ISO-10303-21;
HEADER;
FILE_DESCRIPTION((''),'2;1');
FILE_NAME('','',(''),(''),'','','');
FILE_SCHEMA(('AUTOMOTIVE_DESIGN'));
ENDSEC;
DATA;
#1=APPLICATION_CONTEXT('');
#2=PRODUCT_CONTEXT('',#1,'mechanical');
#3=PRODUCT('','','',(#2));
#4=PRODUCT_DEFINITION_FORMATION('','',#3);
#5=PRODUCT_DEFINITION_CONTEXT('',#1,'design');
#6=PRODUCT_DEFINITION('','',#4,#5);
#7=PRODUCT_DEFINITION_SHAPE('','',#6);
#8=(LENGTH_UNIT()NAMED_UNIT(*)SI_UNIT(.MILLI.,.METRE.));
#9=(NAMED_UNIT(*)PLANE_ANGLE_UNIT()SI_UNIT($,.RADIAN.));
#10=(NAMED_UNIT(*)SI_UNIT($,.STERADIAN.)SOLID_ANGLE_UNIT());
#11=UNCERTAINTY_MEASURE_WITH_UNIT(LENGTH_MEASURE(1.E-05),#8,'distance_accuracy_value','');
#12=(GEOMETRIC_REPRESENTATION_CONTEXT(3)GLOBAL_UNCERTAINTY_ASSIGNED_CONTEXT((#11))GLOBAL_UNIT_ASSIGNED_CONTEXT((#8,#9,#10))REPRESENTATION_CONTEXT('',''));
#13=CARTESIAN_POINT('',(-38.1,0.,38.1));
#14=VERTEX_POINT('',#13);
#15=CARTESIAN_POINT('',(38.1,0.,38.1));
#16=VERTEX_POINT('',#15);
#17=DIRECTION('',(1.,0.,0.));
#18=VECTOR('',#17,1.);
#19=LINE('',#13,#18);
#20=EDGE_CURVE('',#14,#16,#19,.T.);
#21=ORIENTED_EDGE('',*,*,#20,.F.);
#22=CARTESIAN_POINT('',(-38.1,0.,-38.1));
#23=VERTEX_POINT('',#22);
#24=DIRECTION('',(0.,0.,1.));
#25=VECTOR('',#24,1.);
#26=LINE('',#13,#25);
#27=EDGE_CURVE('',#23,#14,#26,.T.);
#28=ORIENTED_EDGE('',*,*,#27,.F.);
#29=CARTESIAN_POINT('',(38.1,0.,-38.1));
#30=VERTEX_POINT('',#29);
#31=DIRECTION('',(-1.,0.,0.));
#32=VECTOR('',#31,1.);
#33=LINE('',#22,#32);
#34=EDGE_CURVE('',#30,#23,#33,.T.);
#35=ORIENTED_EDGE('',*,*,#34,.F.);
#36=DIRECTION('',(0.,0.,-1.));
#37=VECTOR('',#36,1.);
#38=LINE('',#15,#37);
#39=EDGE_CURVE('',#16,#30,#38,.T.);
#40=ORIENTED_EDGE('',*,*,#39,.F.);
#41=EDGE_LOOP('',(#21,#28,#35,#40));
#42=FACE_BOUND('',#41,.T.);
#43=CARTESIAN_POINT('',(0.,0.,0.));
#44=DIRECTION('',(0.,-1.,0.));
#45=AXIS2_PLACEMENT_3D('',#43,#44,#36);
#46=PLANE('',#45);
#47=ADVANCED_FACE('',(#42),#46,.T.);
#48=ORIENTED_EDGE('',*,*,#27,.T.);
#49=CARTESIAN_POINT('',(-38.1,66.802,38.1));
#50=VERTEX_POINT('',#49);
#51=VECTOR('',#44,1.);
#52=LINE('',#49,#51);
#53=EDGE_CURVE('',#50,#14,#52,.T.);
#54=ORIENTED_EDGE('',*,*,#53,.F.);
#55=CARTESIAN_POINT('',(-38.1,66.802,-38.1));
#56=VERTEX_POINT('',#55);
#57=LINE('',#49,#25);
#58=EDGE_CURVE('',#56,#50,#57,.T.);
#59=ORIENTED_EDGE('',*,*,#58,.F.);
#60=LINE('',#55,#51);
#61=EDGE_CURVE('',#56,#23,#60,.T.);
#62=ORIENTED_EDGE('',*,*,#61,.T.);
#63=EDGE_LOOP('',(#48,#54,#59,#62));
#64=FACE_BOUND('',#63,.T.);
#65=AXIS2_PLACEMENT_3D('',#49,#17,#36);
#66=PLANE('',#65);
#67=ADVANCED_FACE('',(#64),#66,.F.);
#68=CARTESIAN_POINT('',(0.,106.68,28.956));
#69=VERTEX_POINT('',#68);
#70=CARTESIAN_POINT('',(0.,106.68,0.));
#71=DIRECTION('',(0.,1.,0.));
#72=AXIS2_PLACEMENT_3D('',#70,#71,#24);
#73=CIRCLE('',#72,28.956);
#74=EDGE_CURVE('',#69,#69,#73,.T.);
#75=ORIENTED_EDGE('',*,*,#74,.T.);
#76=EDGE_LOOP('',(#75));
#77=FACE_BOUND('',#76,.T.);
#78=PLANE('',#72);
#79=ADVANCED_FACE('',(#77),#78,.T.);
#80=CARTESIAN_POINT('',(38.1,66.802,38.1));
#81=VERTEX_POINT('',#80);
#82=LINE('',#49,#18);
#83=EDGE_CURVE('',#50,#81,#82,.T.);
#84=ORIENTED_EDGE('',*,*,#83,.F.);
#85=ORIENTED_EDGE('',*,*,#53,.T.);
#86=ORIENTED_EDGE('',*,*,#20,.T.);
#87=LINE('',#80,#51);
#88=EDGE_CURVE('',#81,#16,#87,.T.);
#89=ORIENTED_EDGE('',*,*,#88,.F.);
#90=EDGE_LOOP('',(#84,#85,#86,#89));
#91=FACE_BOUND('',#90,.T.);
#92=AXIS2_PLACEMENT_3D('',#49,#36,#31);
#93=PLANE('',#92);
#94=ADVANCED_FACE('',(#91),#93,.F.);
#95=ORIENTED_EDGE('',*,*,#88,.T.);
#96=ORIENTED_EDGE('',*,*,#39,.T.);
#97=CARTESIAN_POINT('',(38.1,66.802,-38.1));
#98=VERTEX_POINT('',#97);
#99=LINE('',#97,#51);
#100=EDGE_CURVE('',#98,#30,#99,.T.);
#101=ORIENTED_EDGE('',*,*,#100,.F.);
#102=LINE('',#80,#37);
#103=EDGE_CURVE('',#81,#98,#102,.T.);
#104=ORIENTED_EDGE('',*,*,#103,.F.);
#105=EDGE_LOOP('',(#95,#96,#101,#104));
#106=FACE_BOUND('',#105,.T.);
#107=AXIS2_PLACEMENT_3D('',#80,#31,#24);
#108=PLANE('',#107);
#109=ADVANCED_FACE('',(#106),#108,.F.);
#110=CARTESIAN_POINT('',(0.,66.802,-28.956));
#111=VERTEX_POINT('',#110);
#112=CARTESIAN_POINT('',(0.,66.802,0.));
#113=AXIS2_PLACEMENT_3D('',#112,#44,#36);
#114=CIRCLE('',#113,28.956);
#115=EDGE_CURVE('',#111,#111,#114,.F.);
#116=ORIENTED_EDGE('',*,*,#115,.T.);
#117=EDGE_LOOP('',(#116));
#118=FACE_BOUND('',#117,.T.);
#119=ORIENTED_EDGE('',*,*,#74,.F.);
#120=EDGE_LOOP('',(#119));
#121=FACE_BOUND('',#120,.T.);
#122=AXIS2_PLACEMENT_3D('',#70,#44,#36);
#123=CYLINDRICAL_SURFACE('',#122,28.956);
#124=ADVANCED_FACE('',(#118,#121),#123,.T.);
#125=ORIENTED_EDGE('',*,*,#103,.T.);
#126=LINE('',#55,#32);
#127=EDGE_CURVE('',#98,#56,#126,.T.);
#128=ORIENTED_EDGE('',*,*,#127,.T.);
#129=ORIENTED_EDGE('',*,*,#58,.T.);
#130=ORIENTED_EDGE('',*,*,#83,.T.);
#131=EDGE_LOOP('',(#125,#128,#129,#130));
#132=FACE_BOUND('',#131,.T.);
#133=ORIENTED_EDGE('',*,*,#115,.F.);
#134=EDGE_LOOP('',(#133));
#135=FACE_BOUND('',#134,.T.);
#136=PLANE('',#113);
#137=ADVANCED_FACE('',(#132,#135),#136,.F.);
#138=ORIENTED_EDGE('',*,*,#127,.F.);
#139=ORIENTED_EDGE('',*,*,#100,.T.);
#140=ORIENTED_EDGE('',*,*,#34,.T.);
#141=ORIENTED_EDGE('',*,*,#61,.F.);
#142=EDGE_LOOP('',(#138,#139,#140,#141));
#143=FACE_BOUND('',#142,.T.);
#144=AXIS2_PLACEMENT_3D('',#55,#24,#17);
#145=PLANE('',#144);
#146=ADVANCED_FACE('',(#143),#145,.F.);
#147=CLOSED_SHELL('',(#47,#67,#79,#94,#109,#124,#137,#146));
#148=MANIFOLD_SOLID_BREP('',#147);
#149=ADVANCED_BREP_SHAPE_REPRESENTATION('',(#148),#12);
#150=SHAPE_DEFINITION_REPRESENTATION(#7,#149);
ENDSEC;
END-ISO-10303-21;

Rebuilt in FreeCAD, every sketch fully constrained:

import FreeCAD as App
import Part
import Sketcher
Q = App.Units.Quantity

doc = App.newDocument("Part")
body = doc.addObject("PartDesign::Body", "Body")

sketch1 = doc.addObject("Sketcher::SketchObject", "Sketch")
body.addObject(sketch1)
sketch1.AttachmentSupport = (doc.XZ_Plane, [""])
sketch1.MapMode = "FlatFace"
sketch1.addGeometry([
    Part.LineSegment(App.Vector(-38.1, -38.1, 0), App.Vector(-38.1, 38.1, 0)),
    Part.LineSegment(App.Vector(-38.1, 38.1, 0), App.Vector(38.1, 38.1, 0)),
    Part.LineSegment(App.Vector(38.1, 38.1, 0), App.Vector(38.1, -38.1, 0)),
    Part.LineSegment(App.Vector(38.1, -38.1, 0), App.Vector(-38.1, -38.1, 0)),
], False)
sketch1.addConstraint([
    Sketcher.Constraint("Coincident", 0, 2, 1, 1),
    Sketcher.Constraint("Coincident", 1, 2, 2, 1),
    Sketcher.Constraint("Coincident", 2, 2, 3, 1),
    Sketcher.Constraint("Coincident", 3, 2, 0, 1),
    Sketcher.Constraint("Vertical", 0),
    Sketcher.Constraint("Horizontal", 1),
    Sketcher.Constraint("Vertical", 2),
    Sketcher.Constraint("Horizontal", 3),
    Sketcher.Constraint("Symmetric", 0, 2, 2, 2, -1, 1),
    Sketcher.Constraint("Equal", 3, 0),
    Sketcher.Constraint("DistanceX", 1, 1, 1, 2, Q("3 in")),
])
pad1 = doc.addObject("PartDesign::Pad", "Pad")
body.addObject(pad1)
pad1.Profile = sketch1
pad1.Length = Q("2.63 in")
pad1.Reversed = True

sketch2 = doc.addObject("Sketcher::SketchObject", "Sketch001")
body.addObject(sketch2)
sketch2.AttachmentSupport = (doc.XZ_Plane, [""])
sketch2.MapMode = "FlatFace"
sketch2.AttachmentOffset = App.Placement(App.Vector(0, 0, -2.63 * 25.4), App.Rotation())
sketch2.addGeometry(Part.Circle(App.Vector(0, 0, 0), App.Vector(0, 0, 1), 28.956), False)
sketch2.addConstraint([
    Sketcher.Constraint("Coincident", 0, 3, -1, 1),
    Sketcher.Constraint("Diameter", 0, Q("2.28 in")),
])
pad2 = doc.addObject("PartDesign::Pad", "Pad001")
body.addObject(pad2)
pad2.Profile = sketch2
pad2.Length = Q("1.57 in")
pad2.Reversed = True

doc.recompute()
